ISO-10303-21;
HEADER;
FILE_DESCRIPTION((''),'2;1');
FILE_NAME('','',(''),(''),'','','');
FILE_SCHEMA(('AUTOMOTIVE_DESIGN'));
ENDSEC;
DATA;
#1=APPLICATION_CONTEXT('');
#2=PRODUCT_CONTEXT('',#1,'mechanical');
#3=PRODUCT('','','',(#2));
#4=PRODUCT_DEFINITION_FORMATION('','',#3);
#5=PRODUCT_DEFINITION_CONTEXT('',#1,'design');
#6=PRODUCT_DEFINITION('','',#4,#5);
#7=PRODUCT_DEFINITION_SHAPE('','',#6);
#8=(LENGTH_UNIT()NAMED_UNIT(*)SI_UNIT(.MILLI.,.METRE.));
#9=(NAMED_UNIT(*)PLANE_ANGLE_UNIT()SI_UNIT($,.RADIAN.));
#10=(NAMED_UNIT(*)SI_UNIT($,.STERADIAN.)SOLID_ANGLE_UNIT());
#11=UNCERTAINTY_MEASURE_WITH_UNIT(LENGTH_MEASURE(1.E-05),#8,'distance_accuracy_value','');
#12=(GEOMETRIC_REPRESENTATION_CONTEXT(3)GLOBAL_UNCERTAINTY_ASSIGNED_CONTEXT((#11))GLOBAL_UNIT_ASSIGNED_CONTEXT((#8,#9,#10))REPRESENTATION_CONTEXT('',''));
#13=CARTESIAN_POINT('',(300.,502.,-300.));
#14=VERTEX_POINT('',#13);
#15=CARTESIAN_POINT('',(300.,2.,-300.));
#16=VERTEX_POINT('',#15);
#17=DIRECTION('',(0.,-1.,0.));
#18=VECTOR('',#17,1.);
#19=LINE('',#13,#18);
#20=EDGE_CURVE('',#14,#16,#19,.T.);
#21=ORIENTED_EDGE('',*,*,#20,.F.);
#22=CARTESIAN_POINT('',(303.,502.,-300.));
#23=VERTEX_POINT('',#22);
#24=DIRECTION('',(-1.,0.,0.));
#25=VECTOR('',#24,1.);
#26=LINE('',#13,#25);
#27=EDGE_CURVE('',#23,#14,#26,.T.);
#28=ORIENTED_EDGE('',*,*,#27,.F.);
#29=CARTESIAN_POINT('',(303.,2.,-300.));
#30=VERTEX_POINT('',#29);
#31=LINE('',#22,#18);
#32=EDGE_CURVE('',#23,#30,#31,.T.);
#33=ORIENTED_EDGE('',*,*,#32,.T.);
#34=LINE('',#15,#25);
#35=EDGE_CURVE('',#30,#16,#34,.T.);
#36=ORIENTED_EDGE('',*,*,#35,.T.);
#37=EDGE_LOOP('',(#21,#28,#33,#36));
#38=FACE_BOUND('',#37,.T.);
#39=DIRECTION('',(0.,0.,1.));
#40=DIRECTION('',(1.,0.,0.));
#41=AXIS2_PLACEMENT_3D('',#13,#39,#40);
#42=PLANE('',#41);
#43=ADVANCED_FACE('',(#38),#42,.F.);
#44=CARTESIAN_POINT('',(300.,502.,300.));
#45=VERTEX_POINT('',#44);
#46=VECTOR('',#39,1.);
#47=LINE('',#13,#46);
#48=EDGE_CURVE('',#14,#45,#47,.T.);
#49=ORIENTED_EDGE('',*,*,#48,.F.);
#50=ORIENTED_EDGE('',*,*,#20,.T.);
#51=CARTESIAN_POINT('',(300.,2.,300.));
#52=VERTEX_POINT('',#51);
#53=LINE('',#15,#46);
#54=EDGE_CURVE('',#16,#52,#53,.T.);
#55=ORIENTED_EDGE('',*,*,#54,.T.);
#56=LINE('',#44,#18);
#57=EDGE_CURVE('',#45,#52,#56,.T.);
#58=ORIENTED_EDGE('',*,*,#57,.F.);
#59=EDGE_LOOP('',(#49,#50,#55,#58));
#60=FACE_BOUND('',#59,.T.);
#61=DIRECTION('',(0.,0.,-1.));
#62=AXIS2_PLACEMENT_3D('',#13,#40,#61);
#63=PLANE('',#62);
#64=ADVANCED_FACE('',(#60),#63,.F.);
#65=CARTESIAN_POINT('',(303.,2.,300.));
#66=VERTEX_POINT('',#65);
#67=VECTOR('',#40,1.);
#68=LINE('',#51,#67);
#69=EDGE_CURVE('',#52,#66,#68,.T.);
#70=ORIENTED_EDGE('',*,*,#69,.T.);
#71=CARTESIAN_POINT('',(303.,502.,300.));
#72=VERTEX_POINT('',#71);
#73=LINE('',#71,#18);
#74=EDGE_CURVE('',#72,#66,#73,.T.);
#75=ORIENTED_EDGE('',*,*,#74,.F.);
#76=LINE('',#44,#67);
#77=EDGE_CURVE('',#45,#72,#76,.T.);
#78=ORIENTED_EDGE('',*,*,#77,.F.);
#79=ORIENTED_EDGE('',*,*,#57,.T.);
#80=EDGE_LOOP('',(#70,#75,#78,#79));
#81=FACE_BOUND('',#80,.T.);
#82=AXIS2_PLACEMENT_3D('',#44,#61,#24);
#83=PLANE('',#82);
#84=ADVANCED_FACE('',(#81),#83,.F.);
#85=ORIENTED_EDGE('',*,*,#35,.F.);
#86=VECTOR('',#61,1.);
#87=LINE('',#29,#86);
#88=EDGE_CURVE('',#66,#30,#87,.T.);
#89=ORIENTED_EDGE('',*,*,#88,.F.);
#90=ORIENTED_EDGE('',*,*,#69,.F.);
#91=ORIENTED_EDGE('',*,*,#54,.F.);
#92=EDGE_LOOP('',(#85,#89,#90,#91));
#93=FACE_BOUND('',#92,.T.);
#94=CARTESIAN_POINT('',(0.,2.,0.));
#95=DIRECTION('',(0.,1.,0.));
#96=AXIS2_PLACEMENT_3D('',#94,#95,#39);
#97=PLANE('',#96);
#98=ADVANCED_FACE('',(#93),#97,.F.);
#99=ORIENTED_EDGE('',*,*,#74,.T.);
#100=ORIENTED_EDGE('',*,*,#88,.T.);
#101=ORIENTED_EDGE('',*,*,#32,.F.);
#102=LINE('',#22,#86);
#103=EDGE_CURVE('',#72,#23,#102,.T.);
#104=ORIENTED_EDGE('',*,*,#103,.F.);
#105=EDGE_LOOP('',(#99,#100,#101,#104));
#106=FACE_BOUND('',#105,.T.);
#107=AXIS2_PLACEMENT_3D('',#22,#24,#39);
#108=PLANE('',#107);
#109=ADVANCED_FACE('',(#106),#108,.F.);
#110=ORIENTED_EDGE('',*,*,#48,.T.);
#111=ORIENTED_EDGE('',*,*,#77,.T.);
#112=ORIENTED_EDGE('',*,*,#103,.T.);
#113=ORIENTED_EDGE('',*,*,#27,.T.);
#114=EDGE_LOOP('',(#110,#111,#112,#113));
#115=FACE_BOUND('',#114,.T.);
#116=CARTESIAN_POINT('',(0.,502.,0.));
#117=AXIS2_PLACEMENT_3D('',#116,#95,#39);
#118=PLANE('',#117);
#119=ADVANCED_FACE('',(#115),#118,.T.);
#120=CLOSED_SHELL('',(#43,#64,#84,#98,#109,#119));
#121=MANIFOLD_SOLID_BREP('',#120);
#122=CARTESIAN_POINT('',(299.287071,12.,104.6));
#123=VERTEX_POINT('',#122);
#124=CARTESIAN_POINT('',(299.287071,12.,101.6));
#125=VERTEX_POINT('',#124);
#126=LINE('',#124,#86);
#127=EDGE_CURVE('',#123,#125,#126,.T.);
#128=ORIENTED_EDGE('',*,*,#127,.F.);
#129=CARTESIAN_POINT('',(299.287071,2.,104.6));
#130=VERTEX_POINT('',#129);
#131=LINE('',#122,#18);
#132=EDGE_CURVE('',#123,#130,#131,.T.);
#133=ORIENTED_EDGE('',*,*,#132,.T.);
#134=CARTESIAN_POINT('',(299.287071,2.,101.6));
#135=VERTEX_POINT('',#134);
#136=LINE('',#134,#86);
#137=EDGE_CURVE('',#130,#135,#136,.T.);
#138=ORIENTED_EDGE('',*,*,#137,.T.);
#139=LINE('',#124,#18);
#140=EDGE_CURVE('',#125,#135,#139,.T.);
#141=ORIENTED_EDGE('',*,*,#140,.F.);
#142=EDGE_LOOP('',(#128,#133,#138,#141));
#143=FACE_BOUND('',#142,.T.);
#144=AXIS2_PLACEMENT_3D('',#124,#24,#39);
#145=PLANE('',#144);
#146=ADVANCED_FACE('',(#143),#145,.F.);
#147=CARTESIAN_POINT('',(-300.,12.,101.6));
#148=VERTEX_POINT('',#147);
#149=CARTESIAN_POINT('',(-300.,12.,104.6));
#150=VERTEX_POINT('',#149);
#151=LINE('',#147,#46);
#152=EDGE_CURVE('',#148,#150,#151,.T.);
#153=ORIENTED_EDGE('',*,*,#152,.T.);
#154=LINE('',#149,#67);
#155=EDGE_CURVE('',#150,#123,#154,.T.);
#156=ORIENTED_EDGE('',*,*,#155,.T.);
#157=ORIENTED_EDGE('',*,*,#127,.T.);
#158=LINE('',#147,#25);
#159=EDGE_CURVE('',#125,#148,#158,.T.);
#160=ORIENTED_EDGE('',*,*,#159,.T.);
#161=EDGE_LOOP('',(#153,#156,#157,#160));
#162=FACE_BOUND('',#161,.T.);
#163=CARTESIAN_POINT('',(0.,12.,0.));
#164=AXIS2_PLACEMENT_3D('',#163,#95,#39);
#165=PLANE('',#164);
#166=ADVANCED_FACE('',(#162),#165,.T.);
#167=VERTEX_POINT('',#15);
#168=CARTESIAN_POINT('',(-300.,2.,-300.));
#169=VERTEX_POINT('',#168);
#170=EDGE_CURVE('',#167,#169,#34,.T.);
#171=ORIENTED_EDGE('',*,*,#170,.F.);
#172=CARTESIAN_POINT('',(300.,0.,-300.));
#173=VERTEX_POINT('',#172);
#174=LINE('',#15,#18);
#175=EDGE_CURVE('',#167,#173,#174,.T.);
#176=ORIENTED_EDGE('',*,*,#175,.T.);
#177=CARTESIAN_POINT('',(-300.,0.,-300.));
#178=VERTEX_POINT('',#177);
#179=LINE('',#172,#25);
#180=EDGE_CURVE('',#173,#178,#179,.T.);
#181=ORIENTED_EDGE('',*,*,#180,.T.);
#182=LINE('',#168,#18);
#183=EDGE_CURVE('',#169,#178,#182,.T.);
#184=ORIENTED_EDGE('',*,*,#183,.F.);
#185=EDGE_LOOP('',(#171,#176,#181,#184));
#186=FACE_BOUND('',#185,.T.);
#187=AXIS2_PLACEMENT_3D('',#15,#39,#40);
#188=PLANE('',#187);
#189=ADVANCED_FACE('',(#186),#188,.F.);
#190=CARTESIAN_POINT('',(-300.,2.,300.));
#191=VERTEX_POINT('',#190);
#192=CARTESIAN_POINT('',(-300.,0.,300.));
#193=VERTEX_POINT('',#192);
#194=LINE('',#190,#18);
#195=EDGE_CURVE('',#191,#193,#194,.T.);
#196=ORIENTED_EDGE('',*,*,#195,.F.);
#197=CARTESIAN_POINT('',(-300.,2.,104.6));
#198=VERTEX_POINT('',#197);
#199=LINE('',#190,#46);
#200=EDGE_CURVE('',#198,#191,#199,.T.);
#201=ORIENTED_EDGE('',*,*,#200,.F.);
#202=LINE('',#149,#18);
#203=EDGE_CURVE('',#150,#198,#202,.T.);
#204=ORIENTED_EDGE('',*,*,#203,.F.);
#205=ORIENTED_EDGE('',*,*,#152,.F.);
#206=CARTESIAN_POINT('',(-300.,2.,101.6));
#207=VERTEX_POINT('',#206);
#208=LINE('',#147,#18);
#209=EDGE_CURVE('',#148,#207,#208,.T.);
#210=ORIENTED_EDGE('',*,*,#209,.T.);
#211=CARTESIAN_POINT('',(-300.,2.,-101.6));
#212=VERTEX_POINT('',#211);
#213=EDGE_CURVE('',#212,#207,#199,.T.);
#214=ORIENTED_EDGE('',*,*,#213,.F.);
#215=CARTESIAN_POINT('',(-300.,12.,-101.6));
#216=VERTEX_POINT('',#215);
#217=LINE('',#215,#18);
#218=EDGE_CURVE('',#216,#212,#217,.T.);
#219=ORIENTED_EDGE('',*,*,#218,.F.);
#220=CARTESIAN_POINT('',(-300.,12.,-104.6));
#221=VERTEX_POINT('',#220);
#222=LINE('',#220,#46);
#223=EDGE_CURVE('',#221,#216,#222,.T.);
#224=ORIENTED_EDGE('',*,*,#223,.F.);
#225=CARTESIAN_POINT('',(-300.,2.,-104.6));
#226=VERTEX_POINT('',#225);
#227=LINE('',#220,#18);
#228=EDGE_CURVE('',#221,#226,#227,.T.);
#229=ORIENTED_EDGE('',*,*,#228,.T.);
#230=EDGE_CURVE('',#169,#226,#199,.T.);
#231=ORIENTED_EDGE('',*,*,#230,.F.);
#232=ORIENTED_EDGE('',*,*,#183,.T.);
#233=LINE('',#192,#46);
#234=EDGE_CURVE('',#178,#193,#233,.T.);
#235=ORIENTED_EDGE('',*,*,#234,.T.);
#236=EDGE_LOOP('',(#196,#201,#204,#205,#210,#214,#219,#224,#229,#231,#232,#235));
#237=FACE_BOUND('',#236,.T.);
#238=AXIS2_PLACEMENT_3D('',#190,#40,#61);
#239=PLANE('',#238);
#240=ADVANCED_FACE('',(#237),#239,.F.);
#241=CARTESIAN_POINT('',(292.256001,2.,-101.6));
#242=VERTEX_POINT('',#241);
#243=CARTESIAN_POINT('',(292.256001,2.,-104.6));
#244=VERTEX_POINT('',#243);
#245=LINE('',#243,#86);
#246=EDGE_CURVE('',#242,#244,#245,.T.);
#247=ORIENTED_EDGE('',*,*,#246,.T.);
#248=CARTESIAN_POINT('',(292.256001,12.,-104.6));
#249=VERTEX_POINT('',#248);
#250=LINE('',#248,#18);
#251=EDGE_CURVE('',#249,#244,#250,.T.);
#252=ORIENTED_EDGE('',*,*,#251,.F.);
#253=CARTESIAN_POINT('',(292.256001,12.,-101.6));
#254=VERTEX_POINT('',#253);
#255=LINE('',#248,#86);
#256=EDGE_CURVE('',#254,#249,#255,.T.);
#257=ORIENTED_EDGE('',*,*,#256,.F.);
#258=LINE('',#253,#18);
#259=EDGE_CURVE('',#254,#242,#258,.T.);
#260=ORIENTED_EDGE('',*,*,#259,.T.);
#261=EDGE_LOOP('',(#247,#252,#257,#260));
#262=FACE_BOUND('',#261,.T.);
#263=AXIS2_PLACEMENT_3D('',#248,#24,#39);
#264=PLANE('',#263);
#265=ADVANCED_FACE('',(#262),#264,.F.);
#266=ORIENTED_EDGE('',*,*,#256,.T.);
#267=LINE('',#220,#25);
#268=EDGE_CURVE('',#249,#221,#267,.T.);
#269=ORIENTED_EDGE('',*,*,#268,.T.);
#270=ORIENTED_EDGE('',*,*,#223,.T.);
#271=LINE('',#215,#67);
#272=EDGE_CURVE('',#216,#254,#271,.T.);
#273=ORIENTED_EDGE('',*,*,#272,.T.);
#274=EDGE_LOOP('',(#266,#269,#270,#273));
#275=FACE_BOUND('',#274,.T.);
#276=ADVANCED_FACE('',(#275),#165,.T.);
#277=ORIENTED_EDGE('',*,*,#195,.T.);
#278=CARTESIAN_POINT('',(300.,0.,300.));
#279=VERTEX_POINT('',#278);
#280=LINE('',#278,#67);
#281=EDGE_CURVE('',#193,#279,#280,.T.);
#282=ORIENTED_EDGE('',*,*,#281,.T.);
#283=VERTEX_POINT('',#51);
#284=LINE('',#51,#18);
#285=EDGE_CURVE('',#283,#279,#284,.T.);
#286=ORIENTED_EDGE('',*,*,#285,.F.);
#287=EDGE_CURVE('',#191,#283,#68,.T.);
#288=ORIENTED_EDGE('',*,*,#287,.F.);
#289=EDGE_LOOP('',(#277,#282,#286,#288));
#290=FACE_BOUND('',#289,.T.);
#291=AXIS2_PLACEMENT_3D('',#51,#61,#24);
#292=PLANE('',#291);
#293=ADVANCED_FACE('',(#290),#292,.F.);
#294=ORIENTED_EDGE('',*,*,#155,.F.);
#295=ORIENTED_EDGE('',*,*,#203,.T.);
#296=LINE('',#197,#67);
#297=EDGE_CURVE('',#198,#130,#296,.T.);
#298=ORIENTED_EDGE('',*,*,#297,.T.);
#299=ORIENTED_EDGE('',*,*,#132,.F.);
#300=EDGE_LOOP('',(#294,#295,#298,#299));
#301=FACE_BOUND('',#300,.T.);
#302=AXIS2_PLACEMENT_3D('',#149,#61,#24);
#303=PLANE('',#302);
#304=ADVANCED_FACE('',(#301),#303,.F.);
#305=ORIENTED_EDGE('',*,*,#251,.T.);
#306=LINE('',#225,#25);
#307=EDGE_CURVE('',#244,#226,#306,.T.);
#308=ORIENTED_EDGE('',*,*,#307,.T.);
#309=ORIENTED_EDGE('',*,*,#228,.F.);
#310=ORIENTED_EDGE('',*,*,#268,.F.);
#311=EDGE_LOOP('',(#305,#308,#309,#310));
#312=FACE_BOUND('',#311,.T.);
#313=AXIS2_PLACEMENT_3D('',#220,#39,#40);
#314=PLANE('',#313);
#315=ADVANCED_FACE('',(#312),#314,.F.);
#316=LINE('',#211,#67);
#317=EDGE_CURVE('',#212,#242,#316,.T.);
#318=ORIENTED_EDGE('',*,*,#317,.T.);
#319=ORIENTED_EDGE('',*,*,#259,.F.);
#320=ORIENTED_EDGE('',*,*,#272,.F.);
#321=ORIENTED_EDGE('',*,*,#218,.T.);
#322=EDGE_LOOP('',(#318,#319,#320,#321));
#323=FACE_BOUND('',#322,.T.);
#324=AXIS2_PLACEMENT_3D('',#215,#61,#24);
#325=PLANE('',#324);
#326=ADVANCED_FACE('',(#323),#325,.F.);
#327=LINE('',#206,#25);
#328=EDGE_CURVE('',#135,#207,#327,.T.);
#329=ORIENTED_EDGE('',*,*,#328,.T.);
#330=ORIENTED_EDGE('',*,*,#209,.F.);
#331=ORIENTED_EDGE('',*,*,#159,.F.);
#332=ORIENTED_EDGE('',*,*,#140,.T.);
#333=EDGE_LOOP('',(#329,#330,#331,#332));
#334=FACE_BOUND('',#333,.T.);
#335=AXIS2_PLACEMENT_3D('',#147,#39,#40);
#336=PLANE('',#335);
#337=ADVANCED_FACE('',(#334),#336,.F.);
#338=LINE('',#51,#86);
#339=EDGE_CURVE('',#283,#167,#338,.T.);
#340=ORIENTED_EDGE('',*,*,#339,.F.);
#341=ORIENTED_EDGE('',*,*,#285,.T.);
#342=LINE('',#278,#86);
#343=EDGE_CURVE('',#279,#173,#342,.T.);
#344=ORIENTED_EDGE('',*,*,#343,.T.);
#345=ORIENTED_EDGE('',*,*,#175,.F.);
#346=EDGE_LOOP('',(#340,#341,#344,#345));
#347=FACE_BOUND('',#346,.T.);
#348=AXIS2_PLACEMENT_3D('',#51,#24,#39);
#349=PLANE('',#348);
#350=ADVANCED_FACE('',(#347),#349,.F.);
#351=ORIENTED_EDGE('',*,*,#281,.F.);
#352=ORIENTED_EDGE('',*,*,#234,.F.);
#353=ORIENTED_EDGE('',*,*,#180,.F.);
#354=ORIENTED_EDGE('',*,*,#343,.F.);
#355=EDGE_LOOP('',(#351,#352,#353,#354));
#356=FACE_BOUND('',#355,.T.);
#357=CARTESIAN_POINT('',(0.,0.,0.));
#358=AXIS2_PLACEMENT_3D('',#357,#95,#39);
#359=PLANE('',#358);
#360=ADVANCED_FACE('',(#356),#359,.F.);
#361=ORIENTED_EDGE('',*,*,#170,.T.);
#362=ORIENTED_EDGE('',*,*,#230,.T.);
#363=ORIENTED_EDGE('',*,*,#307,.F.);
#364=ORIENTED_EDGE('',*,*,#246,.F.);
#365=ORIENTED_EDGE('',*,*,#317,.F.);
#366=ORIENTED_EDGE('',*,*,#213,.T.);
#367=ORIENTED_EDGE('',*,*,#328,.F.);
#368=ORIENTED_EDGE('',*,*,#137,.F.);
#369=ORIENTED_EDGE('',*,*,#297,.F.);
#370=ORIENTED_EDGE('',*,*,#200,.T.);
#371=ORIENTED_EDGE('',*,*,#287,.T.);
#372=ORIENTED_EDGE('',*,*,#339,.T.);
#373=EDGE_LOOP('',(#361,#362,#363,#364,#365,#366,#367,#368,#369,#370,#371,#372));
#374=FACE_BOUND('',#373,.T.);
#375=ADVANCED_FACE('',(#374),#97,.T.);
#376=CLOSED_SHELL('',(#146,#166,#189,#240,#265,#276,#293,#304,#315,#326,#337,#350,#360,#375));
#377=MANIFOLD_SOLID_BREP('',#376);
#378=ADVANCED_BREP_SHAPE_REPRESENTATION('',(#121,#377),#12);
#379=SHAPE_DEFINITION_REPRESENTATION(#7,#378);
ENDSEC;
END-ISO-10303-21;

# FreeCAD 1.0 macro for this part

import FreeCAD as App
import Part
import Sketcher
Q = App.Units.Quantity

doc = App.newDocument("Part")
body = doc.addObject("PartDesign::Body", "Body")

# Sketch on XZ plane
sketch1 = body.newObject("Sketcher::SketchObject", "Sketch")
sketch1.AttachmentSupport = (doc.getObject("XZ_Plane"), [""])
sketch1.MapMode = "FlatFace"
sketch1.addGeometry(Part.LineSegment(App.Vector(-300, -300, 0), App.Vector(-300, 300, 0)), False)
sketch1.addGeometry(Part.LineSegment(App.Vector(-300, 300, 0), App.Vector(300, 300, 0)), False)
sketch1.addGeometry(Part.LineSegment(App.Vector(300, 300, 0), App.Vector(300, -300, 0)), False)
sketch1.addGeometry(Part.LineSegment(App.Vector(300, -300, 0), App.Vector(-300, -300, 0)), False)
sketch1.addConstraint(Sketcher.Constraint("Coincident", 0, 2, 1, 1))
sketch1.addConstraint(Sketcher.Constraint("Coincident", 1, 2, 2, 1))
sketch1.addConstraint(Sketcher.Constraint("Coincident", 2, 2, 3, 1))
sketch1.addConstraint(Sketcher.Constraint("Coincident", 3, 2, 0, 1))
sketch1.addConstraint(Sketcher.Constraint("Vertical", 0))
sketch1.addConstraint(Sketcher.Constraint("Horizontal", 1))
sketch1.addConstraint(Sketcher.Constraint("Vertical", 2))
sketch1.addConstraint(Sketcher.Constraint("Horizontal", 3))
sketch1.addConstraint(Sketcher.Constraint("Symmetric", 0, 2, 2, 2, -1, 1))
sketch1.addConstraint(Sketcher.Constraint("Equal", 3, 0))
sketch1.addConstraint(Sketcher.Constraint("DistanceX", 1, 1, 1, 2, Q("600 mm")))
pad1 = body.newObject("PartDesign::Pad", "Pad")
pad1.Profile = sketch1
pad1.Length = 2
pad1.Reversed = True

# Sketch on XZ plane
sketch2 = body.newObject("Sketcher::SketchObject", "Sketch001")
sketch2.AttachmentSupport = (doc.getObject("XZ_Plane"), [""])
sketch2.MapMode = "FlatFace"
sketch2.AttachmentOffset = App.Placement(App.Vector(0, 0, -2), App.Rotation())
sketch2.addGeometry(Part.LineSegment(App.Vector(-300, -104.6, 0), App.Vector(-300, -101.6, 0)), False)
sketch2.addGeometry(Part.LineSegment(App.Vector(-300, -101.6, 0), App.Vector(292.3, -101.6, 0)), False)
sketch2.addGeometry(Part.LineSegment(App.Vector(292.3, -101.6, 0), App.Vector(292.3, -104.6, 0)), False)
sketch2.addGeometry(Part.LineSegment(App.Vector(292.3, -104.6, 0), App.Vector(-300, -104.6, 0)), False)
sketch2.addGeometry(Part.LineSegment(App.Vector(-300, 101.6, 0), App.Vector(-300, 104.6, 0)), False)
sketch2.addGeometry(Part.LineSegment(App.Vector(-300, 104.6, 0), App.Vector(299.3, 104.6, 0)), False)
sketch2.addGeometry(Part.LineSegment(App.Vector(299.3, 104.6, 0), App.Vector(299.3, 101.6, 0)), False)
sketch2.addGeometry(Part.LineSegment(App.Vector(299.3, 101.6, 0), App.Vector(-300, 101.6, 0)), False)
sketch2.addConstraint(Sketcher.Constraint("Coincident", 0, 2, 1, 1))
sketch2.addConstraint(Sketcher.Constraint("Coincident", 1, 2, 2, 1))
sketch2.addConstraint(Sketcher.Constraint("Coincident", 2, 2, 3, 1))
sketch2.addConstraint(Sketcher.Constraint("Coincident", 3, 2, 0, 1))
sketch2.addConstraint(Sketcher.Constraint("Coincident", 4, 2, 5, 1))
sketch2.addConstraint(Sketcher.Constraint("Coincident", 5, 2, 6, 1))
sketch2.addConstraint(Sketcher.Constraint("Coincident", 6, 2, 7, 1))
sketch2.addConstraint(Sketcher.Constraint("Coincident", 7, 2, 4, 1))
sketch2.addConstraint(Sketcher.Constraint("Vertical", 0))
sketch2.addConstraint(Sketcher.Constraint("Horizontal", 1))
sketch2.addConstraint(Sketcher.Constraint("Vertical", 2))
sketch2.addConstraint(Sketcher.Constraint("Horizontal", 3))
sketch2.addConstraint(Sketcher.Constraint("Vertical", 4))
sketch2.addConstraint(Sketcher.Constraint("Horizontal", 5))
sketch2.addConstraint(Sketcher.Constraint("Vertical", 6))
sketch2.addConstraint(Sketcher.Constraint("Horizontal", 7))
sketch2.addConstraint(Sketcher.Constraint("Symmetric", 3, 2, 4, 2, -1))
sketch2.addConstraint(Sketcher.Constraint("Equal", 2, 4))
sketch2.addConstraint(Sketcher.Constraint("DistanceY", 0, 1, 0, 2, Q("3 mm")))
sketch2.addConstraint(Sketcher.Constraint("DistanceX", 0, 2, -1, 1, Q("300 mm")))
sketch2.addConstraint(Sketcher.Constraint("DistanceY", 0, 2, -1, 1, Q("101.6 mm")))
sketch2.addConstraint(Sketcher.Constraint("DistanceX", 1, 1, 1, 2, Q("592.256001 mm")))
sketch2.addConstraint(Sketcher.Constraint("DistanceX", 5, 1, 5, 2, Q("599.287071 mm")))
pad2 = body.newObject("PartDesign::Pad", "Pad001")
pad2.Profile = sketch2
pad2.Length = 10
pad2.Reversed = True
body2 = doc.addObject("PartDesign::Body", "Body001")

# Sketch on XZ plane
sketch3 = body2.newObject("Sketcher::SketchObject", "Sketch002")
sketch3.AttachmentSupport = (doc.getObject("XZ_Plane001"), [""])
sketch3.MapMode = "FlatFace"
sketch3.AttachmentOffset = App.Placement(App.Vector(0, 0, -2), App.Rotation())
sketch3.addGeometry(Part.LineSegment(App.Vector(300, -300, 0), App.Vector(300, 300, 0)), False)
sketch3.addGeometry(Part.LineSegment(App.Vector(300, 300, 0), App.Vector(303, 300, 0)), False)
sketch3.addGeometry(Part.LineSegment(App.Vector(303, 300, 0), App.Vector(303, -300, 0)), False)
sketch3.addGeometry(Part.LineSegment(App.Vector(303, -300, 0), App.Vector(300, -300, 0)), False)
sketch3.addConstraint(Sketcher.Constraint("Coincident", 0, 2, 1, 1))
sketch3.addConstraint(Sketcher.Constraint("Coincident", 1, 2, 2, 1))
sketch3.addConstraint(Sketcher.Constraint("Coincident", 2, 2, 3, 1))
sketch3.addConstraint(Sketcher.Constraint("Coincident", 3, 2, 0, 1))
sketch3.addConstraint(Sketcher.Constraint("Vertical", 0))
sketch3.addConstraint(Sketcher.Constraint("Horizontal", 1))
sketch3.addConstraint(Sketcher.Constraint("Vertical", 2))
sketch3.addConstraint(Sketcher.Constraint("Horizontal", 3))
sketch3.addConstraint(Sketcher.Constraint("DistanceX", 1, 1, 1, 2, Q("3 mm")))
sketch3.addConstraint(Sketcher.Constraint("DistanceY", 0, 1, 0, 2, Q("600 mm")))
sketch3.addConstraint(Sketcher.Constraint("DistanceX", -1, 1, 0, 2, Q("300 mm")))
sketch3.addConstraint(Sketcher.Constraint("DistanceY", -1, 1, 0, 2, Q("300 mm")))
pad3 = body2.newObject("PartDesign::Pad", "Pad002")
pad3.Profile = sketch3
pad3.Length = 500
pad3.Reversed = True

doc.recompute()
